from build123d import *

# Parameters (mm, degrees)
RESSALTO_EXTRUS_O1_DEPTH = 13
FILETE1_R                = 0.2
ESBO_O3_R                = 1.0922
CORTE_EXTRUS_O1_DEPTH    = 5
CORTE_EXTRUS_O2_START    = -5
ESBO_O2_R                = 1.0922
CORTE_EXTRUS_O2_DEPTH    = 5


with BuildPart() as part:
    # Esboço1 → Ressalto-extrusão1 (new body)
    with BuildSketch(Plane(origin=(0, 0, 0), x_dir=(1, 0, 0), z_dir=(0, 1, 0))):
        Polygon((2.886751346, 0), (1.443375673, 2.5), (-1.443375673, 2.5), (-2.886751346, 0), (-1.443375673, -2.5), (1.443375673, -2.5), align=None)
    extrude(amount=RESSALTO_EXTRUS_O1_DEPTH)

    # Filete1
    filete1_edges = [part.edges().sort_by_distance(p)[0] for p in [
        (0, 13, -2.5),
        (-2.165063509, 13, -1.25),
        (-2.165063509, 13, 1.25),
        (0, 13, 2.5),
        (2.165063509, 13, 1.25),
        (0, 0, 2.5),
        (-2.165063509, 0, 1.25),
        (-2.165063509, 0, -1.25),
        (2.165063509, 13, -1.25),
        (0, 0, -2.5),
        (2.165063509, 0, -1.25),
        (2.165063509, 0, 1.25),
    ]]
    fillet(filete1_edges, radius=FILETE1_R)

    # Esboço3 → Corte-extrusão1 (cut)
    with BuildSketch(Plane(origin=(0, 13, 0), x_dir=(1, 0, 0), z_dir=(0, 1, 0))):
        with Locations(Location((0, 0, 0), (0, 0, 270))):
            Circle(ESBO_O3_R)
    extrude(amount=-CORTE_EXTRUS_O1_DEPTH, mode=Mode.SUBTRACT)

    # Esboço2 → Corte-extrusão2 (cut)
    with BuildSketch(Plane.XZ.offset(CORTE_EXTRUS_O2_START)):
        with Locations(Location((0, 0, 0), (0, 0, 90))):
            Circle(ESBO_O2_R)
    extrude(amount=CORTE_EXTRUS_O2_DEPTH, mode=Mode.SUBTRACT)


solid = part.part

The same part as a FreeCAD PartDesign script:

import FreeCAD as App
import Part
import Sketcher
Q = App.Units.Quantity


def edges_at(feature, points):
    """Names of the edges that pass closest to the given points."""
    edges = feature.Shape.Edges
    near = lambda p: min(range(len(edges)), key=lambda i: edges[i].distToShape(Part.Vertex(*p))[0])
    return sorted({f"Edge{near(p) + 1}" for p in points})

doc = App.newDocument("Part")
params = doc.addObject("Spreadsheet::Sheet", "Params")
for row, (alias, value) in enumerate([
    ("pad1_length", "13 mm"),
    ("fillet_radius", "0.2 mm"),
    ("pocket1_length", "5 mm"),
    ("pocket2_length", "5 mm"),
], start=1):
    params.set(f"A{row}", alias)
    params.set(f"B{row}", "=" + value)
    params.setAlias(f"B{row}", alias)

body = doc.addObject("PartDesign::Body", "Body")

sketch1 = body.newObject("Sketcher::SketchObject", "Sketch")
sketch1.AttachmentSupport = (doc.getObject("XZ_Plane"), [""])
sketch1.MapMode = "FlatFace"
sketch1.addGeometry([
    Part.LineSegment(App.Vector(2.9, 0, 0), App.Vector(1.4, -2.5, 0)),
    Part.LineSegment(App.Vector(1.4, -2.5, 0), App.Vector(-1.4, -2.5, 0)),
    Part.LineSegment(App.Vector(-1.4, -2.5, 0), App.Vector(-2.9, 0, 0)),
    Part.LineSegment(App.Vector(-2.9, 0, 0), App.Vector(-1.4, 2.5, 0)),
    Part.LineSegment(App.Vector(-1.4, 2.5, 0), App.Vector(1.4, 2.5, 0)),
    Part.LineSegment(App.Vector(1.4, 2.5, 0), App.Vector(2.9, 0, 0)),
], False)
sketch1.addConstraint([
    Sketcher.Constraint("Coincident", 0, 2, 1, 1),
    Sketcher.Constraint("Coincident", 1, 2, 2, 1),
    Sketcher.Constraint("Coincident", 2, 2, 3, 1),
    Sketcher.Constraint("Coincident", 3, 2, 4, 1),
    Sketcher.Constraint("Coincident", 4, 2, 5, 1),
    Sketcher.Constraint("Coincident", 5, 2, 0, 1),
    Sketcher.Constraint("Horizontal", 1),
    Sketcher.Constraint("Horizontal", 4),
    Sketcher.Constraint("Symmetric", 0, 2, 3, 2, -1, 1),
    Sketcher.Constraint("Symmetric", 2, 2, 5, 2, -1, 1),
    Sketcher.Constraint("PointOnObject", 2, 2, -1),
    Sketcher.Constraint("Parallel", 2, 5),
    Sketcher.Constraint("Vertical", 1, 2, 3, 2),
    Sketcher.Constraint("Angle", 0, Q("-120 deg")),
    Sketcher.Constraint("DistanceY", 1, 2, 3, 2, 5.0),
    Sketcher.Constraint("DistanceX", 1, 2, 1, 1, 2.886751),
])
pad1 = body.newObject("PartDesign::Pad", "Pad")
pad1.Profile = sketch1
pad1.setExpression("Length", "Params.pad1_length")
pad1.Reversed = True
doc.recompute()

fillet = body.newObject("PartDesign::Fillet", "Fillet")
fillet.Base = (pad1, edges_at(pad1, [
    (0, 13, -2.5),
    (-2.165, 13, -1.25),
    (-2.165, 13, 1.25),
    (0, 13, 2.5),
    (2.165, 13, 1.25),
    (0, 0, 2.5),
    (-2.165, 0, 1.25),
    (-2.165, 0, -1.25),
    (2.165, 13, -1.25),
    (0, 0, -2.5),
    (2.165, 0, -1.25),
    (2.165, 0, 1.25),
]))
fillet.setExpression("Radius", "Params.fillet_radius")

sketch2 = body.newObject("Sketcher::SketchObject", "Sketch001")
sketch2.AttachmentSupport = (doc.getObject("XZ_Plane"), [""])
sketch2.MapMode = "FlatFace"
sketch2.AttachmentOffset = App.Placement(App.Vector(0, 0, -13), App.Rotation())
sketch2.addGeometry(Part.Circle(App.Vector(0, 0, 0), App.Vector(0, 0, 1), 1.1), False)
sketch2.addConstraint([
    Sketcher.Constraint("Coincident", 0, 3, -1, 1),
    Sketcher.Constraint("Diameter", 0, 2.1844),
])
pocket1 = body.newObject("PartDesign::Pocket", "Pocket")
pocket1.Profile = sketch2
pocket1.setExpression("Length", "Params.pocket1_length")
pocket1.Reversed = True

sketch3 = body.newObject("Sketcher::SketchObject", "Sketch002")
sketch3.AttachmentSupport = (doc.getObject("XZ_Plane"), [""])
sketch3.MapMode = "FlatFace"
sketch3.AttachmentOffset = App.Placement(App.Vector(0, 0, -5), App.Rotation())
sketch3.addGeometry(Part.Circle(App.Vector(0, 0, 0), App.Vector(0, 0, 1), 1.1), False)
sketch3.addConstraint([
    Sketcher.Constraint("Coincident", 0, 3, -1, 1),
    Sketcher.Constraint("Diameter", 0, 2.1844),
])
pocket2 = body.newObject("PartDesign::Pocket", "Pocket001")
pocket2.Profile = sketch3
pocket2.setExpression("Length", "Params.pocket2_length")
pocket2.Reversed = True

doc.recompute()
